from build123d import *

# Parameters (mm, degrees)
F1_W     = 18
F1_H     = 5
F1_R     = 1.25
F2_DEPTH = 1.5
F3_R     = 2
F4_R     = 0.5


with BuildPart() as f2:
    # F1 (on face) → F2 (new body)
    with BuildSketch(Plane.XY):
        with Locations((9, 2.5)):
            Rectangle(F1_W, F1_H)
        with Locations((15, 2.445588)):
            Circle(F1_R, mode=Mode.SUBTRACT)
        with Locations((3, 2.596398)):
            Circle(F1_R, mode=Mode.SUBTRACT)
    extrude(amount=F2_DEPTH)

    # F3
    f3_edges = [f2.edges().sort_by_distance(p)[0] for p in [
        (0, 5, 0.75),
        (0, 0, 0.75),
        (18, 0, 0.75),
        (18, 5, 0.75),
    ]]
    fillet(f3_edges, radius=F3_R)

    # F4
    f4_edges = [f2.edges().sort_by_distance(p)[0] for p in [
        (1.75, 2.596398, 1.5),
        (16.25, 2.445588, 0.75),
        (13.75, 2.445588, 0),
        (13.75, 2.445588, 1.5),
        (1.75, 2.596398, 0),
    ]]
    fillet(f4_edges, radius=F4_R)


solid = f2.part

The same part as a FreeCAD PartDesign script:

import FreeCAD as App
import Part
import Sketcher
from FreeCAD import Vector


def edges_at(feature, points):
    """Names of the edges that pass closest to the given points."""
    edges = feature.Shape.Edges
    near = lambda p: min(range(len(edges)), key=lambda i: edges[i].distToShape(Part.Vertex(*p))[0])
    return sorted({f"Edge{near(p) + 1}" for p in points})


def add_polygon(sketch, points):
    """Adds a closed chain of lines whose ends are joined by coincident constraints."""
    first, n = sketch.GeometryCount, len(points)
    for a, b in zip(points, points[1:] + points[:1]):
        sketch.addGeometry(Part.LineSegment(App.Vector(*a, 0), App.Vector(*b, 0)), False)
    for i in range(n):
        sketch.addConstraint(Sketcher.Constraint("Coincident", first + i, 2, first + (i + 1) % n, 1))

doc = App.newDocument("Part")
body = doc.addObject("PartDesign::Body", "Body")

# Sketch on XY plane
sketch1 = body.newObject("Sketcher::SketchObject", "Sketch")
sketch1.AttachmentSupport = (doc.getObject("XY_Plane"), [""])
sketch1.MapMode = "FlatFace"
add_polygon(sketch1, [(0, 5), (0, 0), (18, 0), (18, 5)])  # lines 0-3
sketch1.addGeometry(Part.Circle(Vector(15, 2.4, 0), Vector(0, 0, 1), 1.2), False)  # 4
sketch1.addGeometry(Part.Circle(Vector(3, 2.6, 0), Vector(0, 0, 1), 1.2), False)  # 5
sketch1.addConstraint([
    Sketcher.Constraint("Vertical", 0),
    Sketcher.Constraint("Horizontal", 1),
    Sketcher.Constraint("Vertical", 2),
    Sketcher.Constraint("Horizontal", 3),
    Sketcher.Constraint("Coincident", 0, 2, -1, 1),
    Sketcher.Constraint("Equal", 4, 5),
    Sketcher.Constraint("Diameter", 4, 2.5),
    Sketcher.Constraint("DistanceX", 1, 1, 1, 2, 18.0),
    Sketcher.Constraint("DistanceY", 0, 2, 0, 1, 5.0),
    Sketcher.Constraint("DistanceX", -1, 1, 4, 3, 15.0),
    Sketcher.Constraint("DistanceX", -1, 1, 5, 3, 3.0),
    Sketcher.Constraint("DistanceY", -1, 1, 5, 3, 2.596398),
    Sketcher.Constraint("DistanceY", 4, 3, 5, 3, 0.15081),
])
pad1 = body.newObject("PartDesign::Pad", "Pad")
pad1.Profile = sketch1
pad1.Length = 1.5
doc.recompute()

fillet = body.newObject("PartDesign::Fillet", "Fillet")
fillet.Base = (pad1, edges_at(pad1, [
    (0, 5, 0.75),
    (0, 0, 0.75),
    (18, 0, 0.75),
    (18, 5, 0.75),
]))
fillet.Radius = 2
doc.recompute()

fillet2 = body.newObject("PartDesign::Fillet", "Fillet001")
fillet2.Base = (fillet, edges_at(fillet, [
    (1.75, 2.596, 1.5),
    (16.25, 2.446, 0.75),
    (13.75, 2.446, 0),
    (13.75, 2.446, 1.5),
    (1.75, 2.596, 0),
]))
fillet2.Radius = 0.5

doc.recompute()
